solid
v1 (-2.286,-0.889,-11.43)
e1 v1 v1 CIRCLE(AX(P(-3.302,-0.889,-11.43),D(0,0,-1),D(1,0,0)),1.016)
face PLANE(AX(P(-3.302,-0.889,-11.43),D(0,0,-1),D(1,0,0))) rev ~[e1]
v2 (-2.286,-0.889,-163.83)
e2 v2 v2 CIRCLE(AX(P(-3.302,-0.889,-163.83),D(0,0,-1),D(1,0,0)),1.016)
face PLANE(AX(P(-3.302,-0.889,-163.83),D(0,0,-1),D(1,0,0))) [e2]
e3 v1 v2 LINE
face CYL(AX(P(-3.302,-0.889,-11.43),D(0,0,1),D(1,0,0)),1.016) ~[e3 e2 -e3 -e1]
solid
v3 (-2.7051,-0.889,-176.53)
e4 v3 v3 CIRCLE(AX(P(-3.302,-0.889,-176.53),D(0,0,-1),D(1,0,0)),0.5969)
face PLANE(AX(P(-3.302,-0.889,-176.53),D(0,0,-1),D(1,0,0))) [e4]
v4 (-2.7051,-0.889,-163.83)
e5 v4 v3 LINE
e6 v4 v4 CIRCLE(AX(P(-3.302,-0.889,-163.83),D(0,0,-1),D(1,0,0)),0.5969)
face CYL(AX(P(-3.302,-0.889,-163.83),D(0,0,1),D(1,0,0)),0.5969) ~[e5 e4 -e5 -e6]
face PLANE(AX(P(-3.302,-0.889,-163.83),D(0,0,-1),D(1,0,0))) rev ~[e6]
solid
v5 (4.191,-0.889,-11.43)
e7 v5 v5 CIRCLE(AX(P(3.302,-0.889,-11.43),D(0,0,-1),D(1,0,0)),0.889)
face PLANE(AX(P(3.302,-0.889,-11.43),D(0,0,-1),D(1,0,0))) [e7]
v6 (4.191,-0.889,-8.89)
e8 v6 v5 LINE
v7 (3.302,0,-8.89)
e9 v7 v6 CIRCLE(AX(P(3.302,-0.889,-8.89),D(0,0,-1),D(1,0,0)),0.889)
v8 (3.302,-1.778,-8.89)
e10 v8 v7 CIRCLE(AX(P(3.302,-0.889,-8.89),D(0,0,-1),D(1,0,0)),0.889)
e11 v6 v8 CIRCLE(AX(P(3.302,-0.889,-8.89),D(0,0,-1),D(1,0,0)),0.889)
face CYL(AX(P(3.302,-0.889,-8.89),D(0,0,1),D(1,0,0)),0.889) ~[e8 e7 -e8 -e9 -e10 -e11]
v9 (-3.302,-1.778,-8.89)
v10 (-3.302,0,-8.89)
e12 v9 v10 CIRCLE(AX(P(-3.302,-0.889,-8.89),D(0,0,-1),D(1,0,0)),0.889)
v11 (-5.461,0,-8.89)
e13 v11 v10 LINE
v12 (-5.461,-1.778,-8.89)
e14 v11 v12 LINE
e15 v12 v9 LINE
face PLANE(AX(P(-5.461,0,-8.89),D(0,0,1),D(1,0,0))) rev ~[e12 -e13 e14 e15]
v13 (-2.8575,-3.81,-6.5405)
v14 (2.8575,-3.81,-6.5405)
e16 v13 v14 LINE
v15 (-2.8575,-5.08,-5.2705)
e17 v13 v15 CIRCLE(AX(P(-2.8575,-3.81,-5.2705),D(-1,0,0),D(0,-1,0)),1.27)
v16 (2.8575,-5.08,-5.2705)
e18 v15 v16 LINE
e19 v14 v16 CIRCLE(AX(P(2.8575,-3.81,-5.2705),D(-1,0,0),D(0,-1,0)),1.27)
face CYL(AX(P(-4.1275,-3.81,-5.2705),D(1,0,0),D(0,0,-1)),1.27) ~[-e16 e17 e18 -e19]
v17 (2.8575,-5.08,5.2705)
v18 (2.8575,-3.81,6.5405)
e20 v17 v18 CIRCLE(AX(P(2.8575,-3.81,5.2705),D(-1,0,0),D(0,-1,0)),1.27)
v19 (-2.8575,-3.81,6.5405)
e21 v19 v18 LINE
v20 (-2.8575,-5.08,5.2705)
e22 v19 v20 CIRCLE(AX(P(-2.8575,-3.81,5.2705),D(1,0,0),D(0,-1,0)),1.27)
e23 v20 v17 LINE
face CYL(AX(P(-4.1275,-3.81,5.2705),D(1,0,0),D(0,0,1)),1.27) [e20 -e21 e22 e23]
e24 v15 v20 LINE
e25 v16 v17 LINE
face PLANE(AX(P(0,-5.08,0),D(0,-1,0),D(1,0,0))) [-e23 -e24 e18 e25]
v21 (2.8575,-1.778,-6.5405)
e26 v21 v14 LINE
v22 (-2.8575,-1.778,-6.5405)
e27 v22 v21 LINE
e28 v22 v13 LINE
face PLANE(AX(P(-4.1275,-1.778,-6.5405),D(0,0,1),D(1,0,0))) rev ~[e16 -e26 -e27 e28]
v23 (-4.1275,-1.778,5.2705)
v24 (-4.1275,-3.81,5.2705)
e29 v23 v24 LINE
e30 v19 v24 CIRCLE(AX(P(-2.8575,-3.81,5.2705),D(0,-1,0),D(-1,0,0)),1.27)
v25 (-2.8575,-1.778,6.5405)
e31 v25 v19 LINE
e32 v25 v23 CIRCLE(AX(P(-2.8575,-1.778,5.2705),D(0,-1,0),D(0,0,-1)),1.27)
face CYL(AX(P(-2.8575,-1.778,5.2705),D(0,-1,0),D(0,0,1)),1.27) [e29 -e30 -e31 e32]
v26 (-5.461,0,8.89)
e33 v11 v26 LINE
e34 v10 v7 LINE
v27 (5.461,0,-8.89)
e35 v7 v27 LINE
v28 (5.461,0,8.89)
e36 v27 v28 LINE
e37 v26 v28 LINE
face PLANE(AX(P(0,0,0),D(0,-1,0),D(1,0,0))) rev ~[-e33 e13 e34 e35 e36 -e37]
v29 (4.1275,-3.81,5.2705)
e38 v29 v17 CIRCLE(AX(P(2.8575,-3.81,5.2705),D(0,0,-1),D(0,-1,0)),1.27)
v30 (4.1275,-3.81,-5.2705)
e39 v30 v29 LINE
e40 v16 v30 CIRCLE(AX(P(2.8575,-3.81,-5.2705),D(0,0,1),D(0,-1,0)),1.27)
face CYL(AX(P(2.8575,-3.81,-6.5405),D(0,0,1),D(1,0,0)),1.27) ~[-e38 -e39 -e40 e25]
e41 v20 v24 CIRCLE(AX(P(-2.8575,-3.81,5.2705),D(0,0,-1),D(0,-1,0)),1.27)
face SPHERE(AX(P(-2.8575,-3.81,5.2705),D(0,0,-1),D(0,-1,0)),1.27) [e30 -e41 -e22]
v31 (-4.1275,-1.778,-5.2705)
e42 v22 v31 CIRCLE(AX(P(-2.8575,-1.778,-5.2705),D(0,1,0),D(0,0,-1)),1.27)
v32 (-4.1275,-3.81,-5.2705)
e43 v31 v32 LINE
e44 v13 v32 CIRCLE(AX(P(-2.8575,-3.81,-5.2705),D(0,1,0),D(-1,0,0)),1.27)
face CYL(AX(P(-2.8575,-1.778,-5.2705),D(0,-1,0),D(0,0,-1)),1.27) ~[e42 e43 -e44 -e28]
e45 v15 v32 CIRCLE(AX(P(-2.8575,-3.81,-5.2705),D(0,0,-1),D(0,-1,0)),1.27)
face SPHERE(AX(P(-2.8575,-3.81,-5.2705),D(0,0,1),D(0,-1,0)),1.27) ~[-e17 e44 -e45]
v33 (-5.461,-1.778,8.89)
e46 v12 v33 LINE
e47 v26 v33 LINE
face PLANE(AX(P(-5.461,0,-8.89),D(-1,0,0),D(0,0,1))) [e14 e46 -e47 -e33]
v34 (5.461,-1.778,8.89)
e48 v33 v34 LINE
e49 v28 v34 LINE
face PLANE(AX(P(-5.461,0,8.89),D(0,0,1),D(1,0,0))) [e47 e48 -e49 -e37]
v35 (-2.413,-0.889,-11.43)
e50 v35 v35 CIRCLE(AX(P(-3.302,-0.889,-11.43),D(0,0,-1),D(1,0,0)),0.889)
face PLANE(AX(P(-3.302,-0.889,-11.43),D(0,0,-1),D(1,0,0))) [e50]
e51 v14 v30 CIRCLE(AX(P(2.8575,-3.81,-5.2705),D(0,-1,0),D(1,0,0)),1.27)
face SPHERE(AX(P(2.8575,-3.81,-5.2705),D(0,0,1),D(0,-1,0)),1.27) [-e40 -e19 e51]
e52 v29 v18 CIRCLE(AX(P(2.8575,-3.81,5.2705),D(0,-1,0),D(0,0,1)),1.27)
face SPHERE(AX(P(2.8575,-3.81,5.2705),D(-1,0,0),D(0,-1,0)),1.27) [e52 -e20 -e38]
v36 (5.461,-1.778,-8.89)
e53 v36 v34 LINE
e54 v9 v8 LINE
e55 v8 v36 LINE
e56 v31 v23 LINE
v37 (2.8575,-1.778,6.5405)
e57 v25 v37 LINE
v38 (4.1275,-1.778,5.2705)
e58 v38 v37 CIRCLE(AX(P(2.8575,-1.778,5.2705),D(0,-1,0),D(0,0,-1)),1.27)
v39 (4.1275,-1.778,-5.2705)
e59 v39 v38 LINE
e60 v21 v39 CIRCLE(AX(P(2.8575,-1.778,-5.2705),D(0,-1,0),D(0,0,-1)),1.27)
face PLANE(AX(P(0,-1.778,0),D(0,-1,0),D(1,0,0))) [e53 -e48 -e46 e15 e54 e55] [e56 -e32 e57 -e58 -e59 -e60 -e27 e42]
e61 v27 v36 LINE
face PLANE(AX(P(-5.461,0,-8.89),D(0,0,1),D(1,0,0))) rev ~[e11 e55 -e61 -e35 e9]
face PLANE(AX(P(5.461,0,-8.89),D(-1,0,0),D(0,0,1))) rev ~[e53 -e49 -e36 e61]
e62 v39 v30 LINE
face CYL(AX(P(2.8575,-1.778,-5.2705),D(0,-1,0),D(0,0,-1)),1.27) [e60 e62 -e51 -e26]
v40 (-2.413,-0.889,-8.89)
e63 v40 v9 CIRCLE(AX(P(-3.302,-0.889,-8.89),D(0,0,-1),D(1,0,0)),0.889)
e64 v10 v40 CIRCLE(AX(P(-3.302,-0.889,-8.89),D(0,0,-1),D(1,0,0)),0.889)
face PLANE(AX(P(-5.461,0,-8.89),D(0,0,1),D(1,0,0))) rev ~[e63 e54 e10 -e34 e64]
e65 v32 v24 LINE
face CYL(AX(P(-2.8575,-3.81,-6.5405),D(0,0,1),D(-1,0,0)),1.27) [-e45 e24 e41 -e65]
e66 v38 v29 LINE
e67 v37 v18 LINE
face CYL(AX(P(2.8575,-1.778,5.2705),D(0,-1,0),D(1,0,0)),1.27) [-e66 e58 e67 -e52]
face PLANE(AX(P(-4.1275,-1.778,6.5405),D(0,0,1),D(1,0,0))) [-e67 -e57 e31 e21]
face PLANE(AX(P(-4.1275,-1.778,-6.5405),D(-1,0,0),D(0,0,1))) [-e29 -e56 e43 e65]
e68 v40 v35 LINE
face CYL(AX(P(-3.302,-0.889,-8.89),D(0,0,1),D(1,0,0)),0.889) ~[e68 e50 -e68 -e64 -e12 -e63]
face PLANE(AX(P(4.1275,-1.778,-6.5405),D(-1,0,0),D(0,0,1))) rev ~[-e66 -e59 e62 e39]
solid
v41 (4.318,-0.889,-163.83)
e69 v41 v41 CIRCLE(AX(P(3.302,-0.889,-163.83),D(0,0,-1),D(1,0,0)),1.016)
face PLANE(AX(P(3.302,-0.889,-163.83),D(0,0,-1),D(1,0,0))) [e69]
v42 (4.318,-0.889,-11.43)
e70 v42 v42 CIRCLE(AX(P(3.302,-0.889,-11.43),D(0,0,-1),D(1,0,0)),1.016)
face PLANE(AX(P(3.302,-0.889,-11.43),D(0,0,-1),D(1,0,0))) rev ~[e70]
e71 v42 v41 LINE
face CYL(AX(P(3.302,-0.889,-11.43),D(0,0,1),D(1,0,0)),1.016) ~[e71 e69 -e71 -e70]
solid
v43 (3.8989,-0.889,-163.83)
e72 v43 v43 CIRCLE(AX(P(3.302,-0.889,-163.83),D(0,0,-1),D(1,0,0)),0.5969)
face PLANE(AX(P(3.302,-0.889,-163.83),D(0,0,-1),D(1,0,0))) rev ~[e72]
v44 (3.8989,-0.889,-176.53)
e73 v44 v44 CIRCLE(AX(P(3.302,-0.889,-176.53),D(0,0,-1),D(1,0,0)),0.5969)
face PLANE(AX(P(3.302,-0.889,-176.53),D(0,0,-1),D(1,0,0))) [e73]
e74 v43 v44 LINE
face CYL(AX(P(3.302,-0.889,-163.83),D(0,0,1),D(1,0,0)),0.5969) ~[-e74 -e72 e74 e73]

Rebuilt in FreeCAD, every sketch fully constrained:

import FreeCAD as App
import Part
import Sketcher
from FreeCAD import Vector
Q = App.Units.Quantity


def edges_at(feature, points):
    """Names of the edges that pass closest to the given points."""
    edges = feature.Shape.Edges
    near = lambda p: min(range(len(edges)), key=lambda i: edges[i].distToShape(Part.Vertex(*p))[0])
    return sorted({f"Edge{near(p) + 1}" for p in points})

doc = App.newDocument("Part")
body = doc.addObject("PartDesign::Body", "Body")

# Sketch on XZ plane
sketch1 = body.newObject("Sketcher::SketchObject", "Sketch")
sketch1.AttachmentSupport = (doc.getObject("XZ_Plane"), [""])
sketch1.MapMode = "FlatFace"
sketch1.addGeometry([
    Part.LineSegment(Vector(-5, 9, 0), Vector(-5, -9, 0)),
    Part.LineSegment(Vector(-5, -9, 0), Vector(5, -9, 0)),
    Part.LineSegment(Vector(5, -9, 0), Vector(5, 9, 0)),
    Part.LineSegment(Vector(5, 9, 0), Vector(-5, 9, 0)),
], False)
sketch1.addConstraint([
    Sketcher.Constraint("Coincident", 0, 2, 1, 1),
    Sketcher.Constraint("Coincident", 1, 2, 2, 1),
    Sketcher.Constraint("Coincident", 2, 2, 3, 1),
    Sketcher.Constraint("Coincident", 3, 2, 0, 1),
    Sketcher.Constraint("Vertical", 0),
    Sketcher.Constraint("Horizontal", 1),
    Sketcher.Constraint("Vertical", 2),
    Sketcher.Constraint("Horizontal", 3),
    Sketcher.Constraint("Symmetric", 0, 2, 2, 2, -1, 1),
    Sketcher.Constraint("DistanceY", 0, 2, 0, 1, Q("0.7 in")),
    Sketcher.Constraint("DistanceX", 1, 1, 1, 2, Q("0.43 in")),
])
pad1 = body.newObject("PartDesign::Pad", "Pad")
pad1.Profile = sketch1
pad1.Length = Q("0.07 in")

# Sketch on XZ plane
sketch2 = body.newObject("Sketcher::SketchObject", "Sketch001")
sketch2.AttachmentSupport = (doc.getObject("XZ_Plane"), [""])
sketch2.MapMode = "FlatFace"
sketch2.AttachmentOffset = App.Placement(Vector(0, 0, 0.07 * 25.4), App.Rotation())
sketch2.addGeometry([
    Part.LineSegment(Vector(-4, 7, 0), Vector(-4, -7, 0)),
    Part.LineSegment(Vector(-4, -7, 0), Vector(4, -7, 0)),
    Part.LineSegment(Vector(4, -7, 0), Vector(4, 7, 0)),
    Part.LineSegment(Vector(4, 7, 0), Vector(-4, 7, 0)),
], False)
sketch2.addConstraint([
    Sketcher.Constraint("Coincident", 0, 2, 1, 1),
    Sketcher.Constraint("Coincident", 1, 2, 2, 1),
    Sketcher.Constraint("Coincident", 2, 2, 3, 1),
    Sketcher.Constraint("Coincident", 3, 2, 0, 1),
    Sketcher.Constraint("Vertical", 0),
    Sketcher.Constraint("Horizontal", 1),
    Sketcher.Constraint("Vertical", 2),
    Sketcher.Constraint("Horizontal", 3),
    Sketcher.Constraint("Symmetric", 0, 2, 2, 2, -1, 1),
    Sketcher.Constraint("DistanceX", 1, 1, 1, 2, Q("0.325 in")),
    Sketcher.Constraint("DistanceY", 0, 2, 0, 1, Q("0.515 in")),
])
pad2 = body.newObject("PartDesign::Pad", "Pad001")
pad2.Profile = sketch2
pad2.Length = Q("0.13 in")
doc.recompute()

fillet = body.newObject("PartDesign::Fillet", "Fillet")
fillet.Base = (pad2, edges_at(pad2, [
    (-4.128, -5.08, 0),
    (0, -5.08, 6.54),
    (4.128, -5.08, 0),
    (0, -5.08, -6.54),
    (-4.128, -3.429, -6.54),
    (-4.128, -3.429, 6.54),
    (4.128, -3.429, 6.54),
    (4.128, -3.429, -6.54),
]))
fillet.Radius = Q("0.05 in")

# Sketch on XY plane
sketch3 = body.newObject("Sketcher::SketchObject", "Sketch002")
sketch3.AttachmentSupport = (doc.getObject("XY_Plane"), [""])
sketch3.MapMode = "FlatFace"
sketch3.AttachmentOffset = App.Placement(Vector(0, 0, -0.35 * 25.4), App.Rotation())
sketch3.addGeometry([
    Part.Circle(Vector(-3.3, -0.9, 0), Vector(0, 0, 1), 0.9),
    Part.Circle(Vector(3.3, -0.9, 0), Vector(0, 0, 1), 0.9),
], False)
sketch3.addConstraint([
    Sketcher.Constraint("Equal", 0, 1),
    Sketcher.Constraint("Symmetric", 0, 3, 1, 3, -2),
    Sketcher.Constraint("Diameter", 0, Q("0.07 in")),
    Sketcher.Constraint("DistanceX", 0, 3, -1, 1, Q("0.13 in")),
    Sketcher.Constraint("DistanceY", 0, 3, -1, 1, Q("0.035 in")),
])
pad3 = body.newObject("PartDesign::Pad", "Pad002")
pad3.Profile = sketch3
pad3.Length = Q("0.1 in")
pad3.Reversed = True
body2 = doc.addObject("PartDesign::Body", "Body001")

# Sketch on XY plane
sketch4 = body2.newObject("Sketcher::SketchObject", "Sketch003")
sketch4.AttachmentSupport = (doc.getObject("XY_Plane001"), [""])
sketch4.MapMode = "FlatFace"
sketch4.AttachmentOffset = App.Placement(Vector(0, 0, -0.45 * 25.4), App.Rotation())
sketch4.addGeometry(Part.Circle(Vector(-3.3, -0.9, 0), Vector(0, 0, 1), 1), False)
sketch4.addConstraint([
    Sketcher.Constraint("Diameter", 0, Q("0.08 in")),
    Sketcher.Constraint("DistanceX", 0, 3, -1, 1, Q("0.13 in")),
    Sketcher.Constraint("DistanceY", 0, 3, -1, 1, Q("0.035 in")),
])
pad4 = body2.newObject("PartDesign::Pad", "Pad003")
pad4.Profile = sketch4
pad4.Length = Q("6 in")
pad4.Reversed = True
body3 = doc.addObject("PartDesign::Body", "Body002")

# Sketch on XY plane
sketch5 = body3.newObject("Sketcher::SketchObject", "Sketch004")
sketch5.AttachmentSupport = (doc.getObject("XY_Plane002"), [""])
sketch5.MapMode = "FlatFace"
sketch5.AttachmentOffset = App.Placement(Vector(0, 0, -0.45 * 25.4), App.Rotation())
sketch5.addGeometry(Part.Circle(Vector(3.3, -0.9, 0), Vector(0, 0, 1), 1), False)
sketch5.addConstraint([
    Sketcher.Constraint("Diameter", 0, Q("0.08 in")),
    Sketcher.Constraint("DistanceX", -1, 1, 0, 3, Q("0.13 in")),
    Sketcher.Constraint("DistanceY", 0, 3, -1, 1, Q("0.035 in")),
])
pad5 = body3.newObject("PartDesign::Pad", "Pad004")
pad5.Profile = sketch5
pad5.Length = Q("6 in")
pad5.Reversed = True
body4 = doc.addObject("PartDesign::Body", "Body003")

# Sketch on XY plane
sketch6 = body4.newObject("Sketcher::SketchObject", "Sketch005")
sketch6.AttachmentSupport = (doc.getObject("XY_Plane003"), [""])
sketch6.MapMode = "FlatFace"
sketch6.AttachmentOffset = App.Placement(Vector(0, 0, -6.45 * 25.4), App.Rotation())
sketch6.addGeometry(Part.Circle(Vector(-3.3, -0.9, 0), Vector(0, 0, 1), 0.6), False)
sketch6.addConstraint([
    Sketcher.Constraint("Diameter", 0, Q("0.047 in")),
    Sketcher.Constraint("DistanceX", 0, 3, -1, 1, Q("0.13 in")),
    Sketcher.Constraint("DistanceY", 0, 3, -1, 1, Q("0.035 in")),
])
pad6 = body4.newObject("PartDesign::Pad", "Pad005")
pad6.Profile = sketch6
pad6.Length = Q("0.5 in")
pad6.Reversed = True
body5 = doc.addObject("PartDesign::Body", "Body004")

# Sketch on XY plane
sketch7 = body5.newObject("Sketcher::SketchObject", "Sketch006")
sketch7.AttachmentSupport = (doc.getObject("XY_Plane004"), [""])
sketch7.MapMode = "FlatFace"
sketch7.AttachmentOffset = App.Placement(Vector(0, 0, -6.45 * 25.4), App.Rotation())
sketch7.addGeometry(Part.Circle(Vector(3.3, -0.9, 0), Vector(0, 0, 1), 0.6), False)
sketch7.addConstraint([
    Sketcher.Constraint("Diameter", 0, Q("0.047 in")),
    Sketcher.Constraint("DistanceX", -1, 1, 0, 3, Q("0.13 in")),
    Sketcher.Constraint("DistanceY", 0, 3, -1, 1, Q("0.035 in")),
])
pad7 = body5.newObject("PartDesign::Pad", "Pad006")
pad7.Profile = sketch7
pad7.Length = Q("0.5 in")
pad7.Reversed = True

doc.recompute()
